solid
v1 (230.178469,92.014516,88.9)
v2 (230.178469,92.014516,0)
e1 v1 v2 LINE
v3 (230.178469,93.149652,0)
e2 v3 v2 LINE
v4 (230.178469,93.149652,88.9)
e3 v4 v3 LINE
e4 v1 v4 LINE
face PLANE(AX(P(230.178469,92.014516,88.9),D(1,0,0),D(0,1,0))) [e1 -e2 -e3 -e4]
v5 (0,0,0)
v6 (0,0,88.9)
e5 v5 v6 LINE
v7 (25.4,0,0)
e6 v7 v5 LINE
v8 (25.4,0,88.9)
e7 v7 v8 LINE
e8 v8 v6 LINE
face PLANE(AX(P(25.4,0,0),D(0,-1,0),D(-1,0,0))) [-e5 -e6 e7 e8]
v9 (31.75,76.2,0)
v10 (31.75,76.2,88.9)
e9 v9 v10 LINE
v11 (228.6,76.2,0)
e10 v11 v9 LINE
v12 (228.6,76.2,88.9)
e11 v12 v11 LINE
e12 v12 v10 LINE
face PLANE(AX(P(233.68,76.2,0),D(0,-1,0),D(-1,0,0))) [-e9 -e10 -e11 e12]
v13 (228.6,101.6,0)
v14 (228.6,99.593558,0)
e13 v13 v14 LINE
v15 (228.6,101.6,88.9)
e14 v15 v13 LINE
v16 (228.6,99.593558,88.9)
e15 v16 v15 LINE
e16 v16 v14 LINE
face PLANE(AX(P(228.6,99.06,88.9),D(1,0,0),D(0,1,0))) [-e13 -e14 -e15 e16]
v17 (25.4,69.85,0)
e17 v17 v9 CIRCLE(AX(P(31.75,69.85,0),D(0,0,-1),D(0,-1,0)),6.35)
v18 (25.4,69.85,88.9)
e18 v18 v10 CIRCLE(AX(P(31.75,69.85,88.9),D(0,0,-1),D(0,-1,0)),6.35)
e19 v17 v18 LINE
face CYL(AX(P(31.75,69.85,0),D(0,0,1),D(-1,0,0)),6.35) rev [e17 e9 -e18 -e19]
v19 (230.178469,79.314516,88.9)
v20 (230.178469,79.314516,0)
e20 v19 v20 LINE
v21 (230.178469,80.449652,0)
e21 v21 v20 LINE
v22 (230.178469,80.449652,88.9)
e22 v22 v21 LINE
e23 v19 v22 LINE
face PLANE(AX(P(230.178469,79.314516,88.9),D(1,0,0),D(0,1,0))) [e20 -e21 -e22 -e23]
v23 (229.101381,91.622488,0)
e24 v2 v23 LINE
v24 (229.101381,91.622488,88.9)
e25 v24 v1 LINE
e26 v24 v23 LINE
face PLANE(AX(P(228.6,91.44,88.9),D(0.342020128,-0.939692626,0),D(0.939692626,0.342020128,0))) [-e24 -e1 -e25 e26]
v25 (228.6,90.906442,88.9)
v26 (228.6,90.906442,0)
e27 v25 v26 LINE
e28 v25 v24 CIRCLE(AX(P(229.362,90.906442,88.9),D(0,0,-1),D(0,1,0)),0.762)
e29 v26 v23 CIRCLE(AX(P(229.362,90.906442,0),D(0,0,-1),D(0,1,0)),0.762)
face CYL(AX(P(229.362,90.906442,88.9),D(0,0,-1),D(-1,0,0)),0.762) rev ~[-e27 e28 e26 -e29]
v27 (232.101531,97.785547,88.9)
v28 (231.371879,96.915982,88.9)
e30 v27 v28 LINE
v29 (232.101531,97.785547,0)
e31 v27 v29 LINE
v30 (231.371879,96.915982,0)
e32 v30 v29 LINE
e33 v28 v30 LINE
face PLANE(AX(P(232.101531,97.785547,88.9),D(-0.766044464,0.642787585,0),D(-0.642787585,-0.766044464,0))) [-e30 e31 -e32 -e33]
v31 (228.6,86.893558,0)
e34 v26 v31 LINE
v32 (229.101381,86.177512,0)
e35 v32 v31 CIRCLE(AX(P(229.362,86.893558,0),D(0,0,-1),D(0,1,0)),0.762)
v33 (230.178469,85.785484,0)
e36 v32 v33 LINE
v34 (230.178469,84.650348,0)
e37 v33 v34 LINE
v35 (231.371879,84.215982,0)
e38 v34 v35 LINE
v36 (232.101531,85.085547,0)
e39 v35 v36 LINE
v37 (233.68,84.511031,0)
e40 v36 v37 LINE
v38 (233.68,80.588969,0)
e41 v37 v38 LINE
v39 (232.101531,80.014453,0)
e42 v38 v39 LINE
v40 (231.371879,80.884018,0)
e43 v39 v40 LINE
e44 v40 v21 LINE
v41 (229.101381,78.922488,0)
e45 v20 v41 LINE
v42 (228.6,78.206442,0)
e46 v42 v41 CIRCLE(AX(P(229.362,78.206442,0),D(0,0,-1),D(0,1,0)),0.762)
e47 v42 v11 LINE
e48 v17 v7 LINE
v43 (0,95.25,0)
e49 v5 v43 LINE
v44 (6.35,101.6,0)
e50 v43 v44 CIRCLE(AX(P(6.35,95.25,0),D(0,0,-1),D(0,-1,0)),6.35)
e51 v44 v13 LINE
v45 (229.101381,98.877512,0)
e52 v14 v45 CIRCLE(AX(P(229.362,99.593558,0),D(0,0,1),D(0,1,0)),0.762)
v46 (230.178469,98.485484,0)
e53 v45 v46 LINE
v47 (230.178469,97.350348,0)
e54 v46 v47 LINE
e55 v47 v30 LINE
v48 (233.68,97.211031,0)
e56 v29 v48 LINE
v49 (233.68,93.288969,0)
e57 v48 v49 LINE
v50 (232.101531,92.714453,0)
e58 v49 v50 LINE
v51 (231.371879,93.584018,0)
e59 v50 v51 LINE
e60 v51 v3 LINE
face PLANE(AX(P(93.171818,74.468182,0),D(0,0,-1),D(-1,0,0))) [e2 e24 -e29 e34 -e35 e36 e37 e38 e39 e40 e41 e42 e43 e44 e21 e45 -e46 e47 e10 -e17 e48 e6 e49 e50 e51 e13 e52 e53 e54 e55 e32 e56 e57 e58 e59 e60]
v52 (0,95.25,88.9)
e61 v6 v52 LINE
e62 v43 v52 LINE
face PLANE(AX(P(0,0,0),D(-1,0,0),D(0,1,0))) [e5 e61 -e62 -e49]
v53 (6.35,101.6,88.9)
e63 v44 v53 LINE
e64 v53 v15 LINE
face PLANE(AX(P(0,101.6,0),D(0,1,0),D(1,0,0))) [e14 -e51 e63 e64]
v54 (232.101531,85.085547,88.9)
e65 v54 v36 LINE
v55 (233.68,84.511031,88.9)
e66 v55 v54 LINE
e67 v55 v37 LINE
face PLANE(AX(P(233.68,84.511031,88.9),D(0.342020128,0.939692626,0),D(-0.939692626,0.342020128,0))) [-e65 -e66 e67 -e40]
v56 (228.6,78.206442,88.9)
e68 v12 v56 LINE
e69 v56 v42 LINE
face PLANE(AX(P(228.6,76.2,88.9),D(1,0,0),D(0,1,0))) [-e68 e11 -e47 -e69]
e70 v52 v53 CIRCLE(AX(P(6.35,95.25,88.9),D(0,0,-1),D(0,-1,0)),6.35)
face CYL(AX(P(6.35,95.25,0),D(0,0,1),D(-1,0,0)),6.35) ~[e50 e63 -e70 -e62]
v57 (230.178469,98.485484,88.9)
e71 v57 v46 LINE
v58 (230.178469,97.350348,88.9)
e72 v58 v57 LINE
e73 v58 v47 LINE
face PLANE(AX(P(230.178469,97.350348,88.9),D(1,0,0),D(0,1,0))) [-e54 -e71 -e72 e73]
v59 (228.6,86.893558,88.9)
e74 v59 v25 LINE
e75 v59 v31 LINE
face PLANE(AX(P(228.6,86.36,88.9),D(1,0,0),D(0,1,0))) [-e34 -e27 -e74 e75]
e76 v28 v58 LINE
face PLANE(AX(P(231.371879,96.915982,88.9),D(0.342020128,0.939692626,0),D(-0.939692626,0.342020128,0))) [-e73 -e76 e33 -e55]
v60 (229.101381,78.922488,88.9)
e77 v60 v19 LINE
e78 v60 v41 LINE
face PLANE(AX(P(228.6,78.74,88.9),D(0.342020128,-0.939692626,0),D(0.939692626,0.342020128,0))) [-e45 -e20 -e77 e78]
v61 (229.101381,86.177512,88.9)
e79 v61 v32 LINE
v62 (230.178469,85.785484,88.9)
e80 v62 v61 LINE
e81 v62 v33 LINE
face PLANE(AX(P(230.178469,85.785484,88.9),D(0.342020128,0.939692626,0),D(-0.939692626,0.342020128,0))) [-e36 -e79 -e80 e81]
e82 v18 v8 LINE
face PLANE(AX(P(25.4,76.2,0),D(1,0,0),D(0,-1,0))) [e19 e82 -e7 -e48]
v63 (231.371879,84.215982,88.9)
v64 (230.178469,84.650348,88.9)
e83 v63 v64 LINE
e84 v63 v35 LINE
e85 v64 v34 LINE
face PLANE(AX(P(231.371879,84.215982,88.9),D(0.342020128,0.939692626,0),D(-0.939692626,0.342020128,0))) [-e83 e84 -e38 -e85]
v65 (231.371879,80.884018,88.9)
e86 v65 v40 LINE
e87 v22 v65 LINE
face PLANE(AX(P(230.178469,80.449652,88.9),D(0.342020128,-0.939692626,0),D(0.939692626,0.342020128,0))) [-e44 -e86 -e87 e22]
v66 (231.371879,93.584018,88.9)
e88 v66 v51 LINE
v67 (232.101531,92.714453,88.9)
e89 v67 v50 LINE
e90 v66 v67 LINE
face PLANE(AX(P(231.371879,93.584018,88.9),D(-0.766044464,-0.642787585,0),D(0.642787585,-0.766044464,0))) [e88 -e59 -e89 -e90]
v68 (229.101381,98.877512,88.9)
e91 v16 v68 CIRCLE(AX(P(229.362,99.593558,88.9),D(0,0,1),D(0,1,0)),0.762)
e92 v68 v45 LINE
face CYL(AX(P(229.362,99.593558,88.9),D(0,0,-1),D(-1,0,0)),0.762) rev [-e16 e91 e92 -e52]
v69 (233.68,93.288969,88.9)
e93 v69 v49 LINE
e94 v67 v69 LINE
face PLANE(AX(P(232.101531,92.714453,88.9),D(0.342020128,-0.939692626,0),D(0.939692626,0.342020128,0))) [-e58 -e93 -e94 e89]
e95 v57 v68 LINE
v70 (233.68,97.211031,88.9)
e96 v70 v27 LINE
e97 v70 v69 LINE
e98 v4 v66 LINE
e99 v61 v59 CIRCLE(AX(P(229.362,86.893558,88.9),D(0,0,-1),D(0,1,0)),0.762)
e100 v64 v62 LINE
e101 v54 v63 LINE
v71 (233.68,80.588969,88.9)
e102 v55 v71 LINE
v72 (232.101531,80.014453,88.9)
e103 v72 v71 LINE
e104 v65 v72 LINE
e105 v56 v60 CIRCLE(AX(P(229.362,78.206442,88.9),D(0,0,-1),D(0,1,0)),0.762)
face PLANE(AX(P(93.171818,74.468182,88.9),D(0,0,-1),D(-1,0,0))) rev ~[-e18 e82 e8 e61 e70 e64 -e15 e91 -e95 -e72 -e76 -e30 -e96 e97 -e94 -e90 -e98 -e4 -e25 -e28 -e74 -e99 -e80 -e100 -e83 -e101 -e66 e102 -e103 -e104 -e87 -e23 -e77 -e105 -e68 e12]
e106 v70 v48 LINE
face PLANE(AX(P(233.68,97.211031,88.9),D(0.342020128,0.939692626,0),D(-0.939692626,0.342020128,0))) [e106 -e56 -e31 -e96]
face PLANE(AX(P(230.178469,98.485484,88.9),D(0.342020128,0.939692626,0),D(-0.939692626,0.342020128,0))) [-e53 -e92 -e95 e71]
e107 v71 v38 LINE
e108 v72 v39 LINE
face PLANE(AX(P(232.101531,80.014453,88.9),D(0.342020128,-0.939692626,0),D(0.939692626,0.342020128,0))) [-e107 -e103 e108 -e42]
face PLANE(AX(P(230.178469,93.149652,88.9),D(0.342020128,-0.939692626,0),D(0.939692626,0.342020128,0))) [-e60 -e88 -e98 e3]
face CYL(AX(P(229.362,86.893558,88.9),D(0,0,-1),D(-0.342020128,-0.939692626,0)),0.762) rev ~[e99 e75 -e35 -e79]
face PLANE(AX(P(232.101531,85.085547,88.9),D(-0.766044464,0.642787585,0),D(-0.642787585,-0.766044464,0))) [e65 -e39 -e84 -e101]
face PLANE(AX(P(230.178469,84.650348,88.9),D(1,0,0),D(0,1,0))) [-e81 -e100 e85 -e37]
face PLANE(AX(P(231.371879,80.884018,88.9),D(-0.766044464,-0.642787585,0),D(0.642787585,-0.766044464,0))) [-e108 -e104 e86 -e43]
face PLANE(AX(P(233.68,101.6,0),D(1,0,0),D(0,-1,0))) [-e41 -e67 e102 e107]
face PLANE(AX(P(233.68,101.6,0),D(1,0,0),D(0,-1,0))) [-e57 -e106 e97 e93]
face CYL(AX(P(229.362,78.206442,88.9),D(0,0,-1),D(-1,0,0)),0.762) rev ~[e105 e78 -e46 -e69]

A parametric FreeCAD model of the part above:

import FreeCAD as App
import Part
import Sketcher
Q = App.Units.Quantity


def edges_at(feature, points):
    """Names of the edges that pass closest to the given points."""
    edges = feature.Shape.Edges
    near = lambda p: min(range(len(edges)), key=lambda i: edges[i].distToShape(Part.Vertex(*p))[0])
    return sorted({f"Edge{near(p) + 1}" for p in points})

doc = App.newDocument("Part")
body = doc.addObject("PartDesign::Body", "Body")

sketch1 = doc.addObject("Sketcher::SketchObject", "Sketch")
body.addObject(sketch1)
sketch1.AttachmentSupport = (doc.XY_Plane, [""])
sketch1.MapMode = "FlatFace"
sketch1.addGeometry([
    Part.LineSegment(App.Vector(0, 102, 0), App.Vector(0, 0, 0)),
    Part.LineSegment(App.Vector(0, 0, 0), App.Vector(25, 0, 0)),
    Part.LineSegment(App.Vector(25, 0, 0), App.Vector(25, 76, 0)),
    Part.LineSegment(App.Vector(25, 76, 0), App.Vector(234, 76, 0)),
    Part.LineSegment(App.Vector(234, 76, 0), App.Vector(234, 102, 0)),
    Part.LineSegment(App.Vector(234, 102, 0), App.Vector(0, 102, 0)),
], False)
sketch1.addConstraint([
    Sketcher.Constraint("Coincident", 0, 2, 1, 1),
    Sketcher.Constraint("Coincident", 1, 2, 2, 1),
    Sketcher.Constraint("Coincident", 2, 2, 3, 1),
    Sketcher.Constraint("Coincident", 3, 2, 4, 1),
    Sketcher.Constraint("Coincident", 4, 2, 5, 1),
    Sketcher.Constraint("Coincident", 5, 2, 0, 1),
    Sketcher.Constraint("Vertical", 0),
    Sketcher.Constraint("Horizontal", 1),
    Sketcher.Constraint("Vertical", 2),
    Sketcher.Constraint("Horizontal", 3),
    Sketcher.Constraint("Vertical", 4),
    Sketcher.Constraint("Horizontal", 5),
    Sketcher.Constraint("Coincident", 0, 2, -1, 1),
    Sketcher.Constraint("Equal", 1, 4),
    Sketcher.Constraint("DistanceX", 1, 1, 1, 2, Q("1 in")),
    Sketcher.Constraint("DistanceY", 0, 2, 0, 1, Q("4 in")),
    Sketcher.Constraint("DistanceX", 3, 1, 3, 2, Q("8.2 in")),
])
pad1 = doc.addObject("PartDesign::Pad", "Pad")
body.addObject(pad1)
pad1.Profile = sketch1
pad1.Length = Q("3.5 in")

sketch2 = doc.addObject("Sketcher::SketchObject", "Sketch001")
body.addObject(sketch2)
sketch2.AttachmentSupport = (doc.XY_Plane, [""])
sketch2.MapMode = "FlatFace"
sketch2.AttachmentOffset = App.Placement(App.Vector(0, 0, 3.5 * 25.4), App.Rotation())
sketch2.addGeometry([
    Part.LineSegment(App.Vector(228.6, 78.7, 0), App.Vector(228.6, 76.2, 0)),
    Part.LineSegment(App.Vector(228.6, 76.2, 0), App.Vector(233.7, 76.2, 0)),
    Part.LineSegment(App.Vector(233.7, 76.2, 0), App.Vector(233.7, 80.6, 0)),
    Part.LineSegment(App.Vector(233.7, 80.6, 0), App.Vector(232.1, 80, 0)),
    Part.LineSegment(App.Vector(232.1, 80, 0), App.Vector(231.4, 80.9, 0)),
    Part.LineSegment(App.Vector(231.4, 80.9, 0), App.Vector(230.2, 80.4, 0)),
    Part.LineSegment(App.Vector(230.2, 80.4, 0), App.Vector(230.2, 79.3, 0)),
    Part.LineSegment(App.Vector(230.2, 79.3, 0), App.Vector(228.6, 78.7, 0)),
    Part.LineSegment(App.Vector(233.7, 101.6, 0), App.Vector(228.6, 101.6, 0)),
    Part.LineSegment(App.Vector(228.6, 101.6, 0), App.Vector(228.6, 99.1, 0)),
    Part.LineSegment(App.Vector(228.6, 99.1, 0), App.Vector(230.2, 98.5, 0)),
    Part.LineSegment(App.Vector(230.2, 98.5, 0), App.Vector(230.2, 97.4, 0)),
    Part.LineSegment(App.Vector(230.2, 97.4, 0), App.Vector(231.4, 96.9, 0)),
    Part.LineSegment(App.Vector(231.4, 96.9, 0), App.Vector(232.1, 97.8, 0)),
    Part.LineSegment(App.Vector(232.1, 97.8, 0), App.Vector(233.7, 97.2, 0)),
    Part.LineSegment(App.Vector(233.7, 97.2, 0), App.Vector(233.7, 101.6, 0)),
    Part.LineSegment(App.Vector(228.6, 91.4, 0), App.Vector(228.6, 86.4, 0)),
    Part.LineSegment(App.Vector(228.6, 86.4, 0), App.Vector(230.2, 85.8, 0)),
    Part.LineSegment(App.Vector(230.2, 85.8, 0), App.Vector(230.2, 84.7, 0)),
    Part.LineSegment(App.Vector(230.2, 84.7, 0), App.Vector(231.4, 84.2, 0)),
    Part.LineSegment(App.Vector(231.4, 84.2, 0), App.Vector(232.1, 85.1, 0)),
    Part.LineSegment(App.Vector(232.1, 85.1, 0), App.Vector(233.7, 84.5, 0)),
    Part.LineSegment(App.Vector(233.7, 84.5, 0), App.Vector(233.7, 93.3, 0)),
    Part.LineSegment(App.Vector(233.7, 93.3, 0), App.Vector(232.1, 92.7, 0)),
    Part.LineSegment(App.Vector(232.1, 92.7, 0), App.Vector(231.4, 93.6, 0)),
    Part.LineSegment(App.Vector(231.4, 93.6, 0), App.Vector(230.2, 93.1, 0)),
    Part.LineSegment(App.Vector(230.2, 93.1, 0), App.Vector(230.2, 92, 0)),
    Part.LineSegment(App.Vector(230.2, 92, 0), App.Vector(228.6, 91.4, 0)),
], False)
sketch2.addConstraint([
    Sketcher.Constraint("Coincident", 0, 2, 1, 1),
    Sketcher.Constraint("Coincident", 1, 2, 2, 1),
    Sketcher.Constraint("Coincident", 2, 2, 3, 1),
    Sketcher.Constraint("Coincident", 3, 2, 4, 1),
    Sketcher.Constraint("Coincident", 4, 2, 5, 1),
    Sketcher.Constraint("Coincident", 5, 2, 6, 1),
    Sketcher.Constraint("Coincident", 6, 2, 7, 1),
    Sketcher.Constraint("Coincident", 7, 2, 0, 1),
    Sketcher.Constraint("Coincident", 8, 2, 9, 1),
    Sketcher.Constraint("Coincident", 9, 2, 10, 1),
    Sketcher.Constraint("Coincident", 10, 2, 11, 1),
    Sketcher.Constraint("Coincident", 11, 2, 12, 1),
    Sketcher.Constraint("Coincident", 12, 2, 13, 1),
    Sketcher.Constraint("Coincident", 13, 2, 14, 1),
    Sketcher.Constraint("Coincident", 14, 2, 15, 1),
    Sketcher.Constraint("Coincident", 15, 2, 8, 1),
    Sketcher.Constraint("Coincident", 16, 2, 17, 1),
    Sketcher.Constraint("Coincident", 17, 2, 18, 1),
    Sketcher.Constraint("Coincident", 18, 2, 19, 1),
    Sketcher.Constraint("Coincident", 19, 2, 20, 1),
    Sketcher.Constraint("Coincident", 20, 2, 21, 1),
    Sketcher.Constraint("Coincident", 21, 2, 22, 1),
    Sketcher.Constraint("Coincident", 22, 2, 23, 1),
    Sketcher.Constraint("Coincident", 23, 2, 24, 1),
    Sketcher.Constraint("Coincident", 24, 2, 25, 1),
    Sketcher.Constraint("Coincident", 25, 2, 26, 1),
    Sketcher.Constraint("Coincident", 26, 2, 27, 1),
    Sketcher.Constraint("Coincident", 27, 2, 16, 1),
    Sketcher.Constraint("Vertical", 0),
    Sketcher.Constraint("Horizontal", 1),
    Sketcher.Constraint("Vertical", 2),
    Sketcher.Constraint("Vertical", 6),
    Sketcher.Constraint("Horizontal", 8),
    Sketcher.Constraint("Vertical", 9),
    Sketcher.Constraint("Vertical", 11),
    Sketcher.Constraint("Vertical", 15),
    Sketcher.Constraint("Vertical", 16),
    Sketcher.Constraint("Vertical", 18),
    Sketcher.Constraint("Vertical", 22),
    Sketcher.Constraint("Vertical", 26),
    Sketcher.Constraint("Parallel", 3, 5),
    Sketcher.Constraint("Parallel", 5, 7),
    Sketcher.Constraint("Parallel", 10, 12),
    Sketcher.Constraint("Parallel", 12, 14),
    Sketcher.Constraint("Parallel", 14, 17),
    Sketcher.Constraint("Parallel", 17, 19),
    Sketcher.Constraint("Parallel", 13, 20),
    Sketcher.Constraint("Parallel", 19, 21),
    Sketcher.Constraint("Parallel", 7, 23),
    Sketcher.Constraint("Parallel", 4, 24),
    Sketcher.Constraint("Parallel", 23, 25),
    Sketcher.Constraint("Parallel", 25, 27),
    Sketcher.Constraint("Vertical", 7, 2, 8, 2),
    Sketcher.Constraint("Vertical", 6, 2, 10, 2),
    Sketcher.Constraint("Vertical", 4, 2, 12, 2),
    Sketcher.Constraint("Vertical", 3, 2, 13, 2),
    Sketcher.Constraint("Vertical", 2, 2, 14, 2),
    Sketcher.Constraint("Vertical", 9, 2, 16, 2),
    Sketcher.Constraint("Vertical", 11, 2, 17, 2),
    Sketcher.Constraint("Vertical", 12, 2, 19, 2),
    Sketcher.Constraint("Vertical", 13, 2, 20, 2),
    Sketcher.Constraint("Vertical", 15, 2, 21, 2),
    Sketcher.Constraint("Vertical", 20, 2, 23, 2),
    Sketcher.Constraint("Vertical", 19, 2, 24, 2),
    Sketcher.Constraint("Vertical", 18, 2, 25, 2),
    Sketcher.Constraint("Equal", 0, 9),
    Sketcher.Constraint("Equal", 6, 11),
    Sketcher.Constraint("Equal", 2, 15),
    Sketcher.Constraint("Equal", 8, 16),
    Sketcher.Constraint("Equal", 11, 18),
    Sketcher.Constraint("Equal", 18, 26),
    Sketcher.Constraint("Equal", 3, 7),
    Sketcher.Constraint("Equal", 7, 10),
    Sketcher.Constraint("DistanceX", 1, 1, 1, 2, Q("0.2 in")),
    Sketcher.Constraint("DistanceY", 0, 2, 0, 1, Q("0.1 in")),
    Sketcher.Constraint("DistanceX", -1, 1, 0, 2, Q("9 in")),
    Sketcher.Constraint("DistanceY", -1, 1, 0, 2, Q("3 in")),
    Sketcher.Constraint("DistanceY", -1, 1, 8, 2, Q("4 in")),
    Sketcher.Constraint("Angle", 3, Q("-160.000001 deg")),
    Sketcher.Constraint("Angle", 4, Q("129.999998 deg")),
    Sketcher.Constraint("DistanceY", -1, 1, 16, 2, Q("3.4 in")),
    Sketcher.Constraint("Distance", 5, Q("0.05 in")),
    Sketcher.Constraint("DistanceY", 2, 1, 2, 2, 4.388969),
    Sketcher.Constraint("DistanceY", 3, 2, 5, 2, 0.435199),
])
pocket1 = doc.addObject("PartDesign::Pocket", "Pocket")
body.addObject(pocket1)
pocket1.Profile = sketch2
pocket1.Type = "ThroughAll"
doc.recompute()

fillet = doc.addObject("PartDesign::Fillet", "Fillet")
body.addObject(fillet)
fillet.Base = (pocket1, edges_at(pocket1, [(0, 101.6, 44.45), (25.4, 76.2, 44.45)]))
fillet.Radius = Q("0.25 in")
doc.recompute()

fillet2 = doc.addObject("PartDesign::Fillet", "Fillet001")
body.addObject(fillet2)
fillet2.Base = (fillet, edges_at(fillet, [
    (228.6, 78.74, 44.45),
    (228.6, 99.06, 44.45),
    (228.6, 91.44, 44.45),
    (228.6, 86.36, 44.45),
]))
fillet2.Radius = Q("0.03 in")

doc.recompute()
